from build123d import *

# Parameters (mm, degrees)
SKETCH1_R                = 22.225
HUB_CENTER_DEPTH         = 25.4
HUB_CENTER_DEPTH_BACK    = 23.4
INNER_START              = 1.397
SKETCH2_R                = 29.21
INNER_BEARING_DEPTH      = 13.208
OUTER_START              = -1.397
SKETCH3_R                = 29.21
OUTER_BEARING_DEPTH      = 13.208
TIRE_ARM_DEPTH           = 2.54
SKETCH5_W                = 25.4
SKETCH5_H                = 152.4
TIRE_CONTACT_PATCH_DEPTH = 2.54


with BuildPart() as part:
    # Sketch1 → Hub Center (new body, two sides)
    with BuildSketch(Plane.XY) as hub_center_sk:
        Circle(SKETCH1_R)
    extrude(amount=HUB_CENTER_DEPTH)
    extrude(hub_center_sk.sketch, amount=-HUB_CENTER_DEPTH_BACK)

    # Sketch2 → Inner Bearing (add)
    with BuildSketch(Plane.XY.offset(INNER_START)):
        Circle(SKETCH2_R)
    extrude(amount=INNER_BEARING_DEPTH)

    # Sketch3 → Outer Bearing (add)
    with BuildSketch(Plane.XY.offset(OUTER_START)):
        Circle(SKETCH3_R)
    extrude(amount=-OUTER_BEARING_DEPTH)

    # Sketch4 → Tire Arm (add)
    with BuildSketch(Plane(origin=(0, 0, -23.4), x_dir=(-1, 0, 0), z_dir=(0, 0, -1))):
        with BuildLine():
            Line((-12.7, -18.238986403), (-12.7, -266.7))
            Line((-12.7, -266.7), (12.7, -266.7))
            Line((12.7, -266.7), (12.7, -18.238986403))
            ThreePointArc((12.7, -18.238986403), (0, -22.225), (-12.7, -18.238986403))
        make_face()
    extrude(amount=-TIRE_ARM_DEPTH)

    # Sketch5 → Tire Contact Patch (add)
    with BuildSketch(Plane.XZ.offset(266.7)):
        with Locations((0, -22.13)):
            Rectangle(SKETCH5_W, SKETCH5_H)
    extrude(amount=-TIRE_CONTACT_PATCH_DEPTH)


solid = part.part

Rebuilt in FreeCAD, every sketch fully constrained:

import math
import FreeCAD as App
import Part
import Sketcher
from FreeCAD import Vector
Q = App.Units.Quantity


def add_polygon(sketch, points):
    """Adds a closed chain of lines whose ends are joined by coincident constraints."""
    first, n = sketch.GeometryCount, len(points)
    for a, b in zip(points, points[1:] + points[:1]):
        sketch.addGeometry(Part.LineSegment(App.Vector(*a, 0), App.Vector(*b, 0)), False)
    for i in range(n):
        sketch.addConstraint(Sketcher.Constraint("Coincident", first + i, 2, first + (i + 1) % n, 1))

doc = App.newDocument("Part")
body = doc.addObject("PartDesign::Body", "Body")

# Sketch on XY plane
sketch1 = doc.addObject("Sketcher::SketchObject", "Sketch")
body.addObject(sketch1)
sketch1.AttachmentSupport = (doc.XY_Plane, [""])
sketch1.MapMode = "FlatFace"
sketch1.addGeometry(Part.Circle(Vector(0, 0, 0), Vector(0, 0, 1), 22.225), False)
sketch1.addConstraint([
    Sketcher.Constraint("Coincident", 0, 3, -1, 1),
    Sketcher.Constraint("Diameter", 0, Q("1.75 in")),
])
pad1 = doc.addObject("PartDesign::Pad", "Pad")
body.addObject(pad1)
pad1.Profile = sketch1
pad1.Type = "TwoLengths"
pad1.Length = Q("1 in")
pad1.Length2 = 23.4

# Sketch on XY plane
sketch2 = doc.addObject("Sketcher::SketchObject", "Sketch001")
body.addObject(sketch2)
sketch2.AttachmentSupport = (doc.XY_Plane, [""])
sketch2.MapMode = "FlatFace"
sketch2.AttachmentOffset = App.Placement(Vector(0, 0, 0.055 * 25.4), App.Rotation())
sketch2.addGeometry(Part.Circle(Vector(0, 0, 0), Vector(0, 0, 1), 29.21), False)
sketch2.addConstraint([
    Sketcher.Constraint("Coincident", 0, 3, -1, 1),
    Sketcher.Constraint("Diameter", 0, Q("2.3 in")),
])
pad2 = doc.addObject("PartDesign::Pad", "Pad001")
body.addObject(pad2)
pad2.Profile = sketch2
pad2.Length = Q("0.52 in")

# Sketch on XY plane
sketch3 = doc.addObject("Sketcher::SketchObject", "Sketch002")
body.addObject(sketch3)
sketch3.AttachmentSupport = (doc.XY_Plane, [""])
sketch3.MapMode = "FlatFace"
sketch3.AttachmentOffset = App.Placement(Vector(0, 0, -0.055 * 25.4), App.Rotation())
sketch3.addGeometry(Part.Circle(Vector(0, 0, 0), Vector(0, 0, 1), 29.21), False)
sketch3.addConstraint([
    Sketcher.Constraint("Coincident", 0, 3, -1, 1),
    Sketcher.Constraint("Diameter", 0, Q("2.3 in")),
])
pad3 = doc.addObject("PartDesign::Pad", "Pad002")
body.addObject(pad3)
pad3.Profile = sketch3
pad3.Length = Q("0.52 in")
pad3.Reversed = True

# Sketch on XY plane
sketch4 = doc.addObject("Sketcher::SketchObject", "Sketch003")
body.addObject(sketch4)
sketch4.AttachmentSupport = (doc.XY_Plane, [""])
sketch4.MapMode = "FlatFace"
sketch4.AttachmentOffset = App.Placement(Vector(0, 0, -23.4), App.Rotation())
sketch4.addGeometry([
    Part.LineSegment(Vector(12.7, -18.238986, 0), Vector(12.7, -266.7, 0)),
    Part.LineSegment(Vector(12.7, -266.7, 0), Vector(-12.7, -266.7, 0)),
    Part.LineSegment(Vector(-12.7, -266.7, 0), Vector(-12.7, -18.238986, 0)),
    Part.ArcOfCircle(Part.Circle(Vector(0, 0, 0), Vector(0, 0, 1), 22.225), math.radians(-124.849905), math.radians(-55.150095)),
], False)
sketch4.addConstraint([
    Sketcher.Constraint("Coincident", 0, 2, 1, 1),
    Sketcher.Constraint("Coincident", 1, 2, 2, 1),
    Sketcher.Constraint("Coincident", 2, 2, 3, 1),
    Sketcher.Constraint("Coincident", 3, 2, 0, 1),
    Sketcher.Constraint("Vertical", 0),
    Sketcher.Constraint("Horizontal", 1),
    Sketcher.Constraint("Vertical", 2),
    Sketcher.Constraint("Coincident", 3, 3, -1, 1),
    Sketcher.Constraint("Horizontal", 2, 2, 3, 2),
    Sketcher.Constraint("DistanceX", 1, 2, 1, 1, Q("1 in")),
    Sketcher.Constraint("Radius", 3, Q("0.875 in")),
    Sketcher.Constraint("DistanceY", 0, 2, -1, 1, Q("10.5 in")),
])
pad4 = doc.addObject("PartDesign::Pad", "Pad003")
body.addObject(pad4)
pad4.Profile = sketch4
pad4.Length = Q("0.1 in")

# Sketch on XZ plane
sketch5 = doc.addObject("Sketcher::SketchObject", "Sketch004")
body.addObject(sketch5)
sketch5.AttachmentSupport = (doc.XZ_Plane, [""])
sketch5.MapMode = "FlatFace"
sketch5.AttachmentOffset = App.Placement(Vector(0, 0, 10.5 * 25.4), App.Rotation())
add_polygon(sketch5, [(-12.7, 54.07), (-12.7, -98.33), (12.7, -98.33), (12.7, 54.07)])  # lines 0-3
sketch5.addConstraint([
    Sketcher.Constraint("Vertical", 0),
    Sketcher.Constraint("Horizontal", 1),
    Sketcher.Constraint("Vertical", 2),
    Sketcher.Constraint("Horizontal", 3),
    Sketcher.Constraint("DistanceX", 1, 1, 1, 2, Q("1 in")),
    Sketcher.Constraint("DistanceY", 0, 2, 0, 1, Q("6 in")),
    Sketcher.Constraint("DistanceX", 0, 2, -1, 1, Q("0.5 in")),
    Sketcher.Constraint("DistanceY", 0, 2, -1, 1, Q("98.33 mm")),
])
pad5 = doc.addObject("PartDesign::Pad", "Pad004")
body.addObject(pad5)
pad5.Profile = sketch5
pad5.Length = Q("0.1 in")
pad5.Reversed = True

doc.recompute()
